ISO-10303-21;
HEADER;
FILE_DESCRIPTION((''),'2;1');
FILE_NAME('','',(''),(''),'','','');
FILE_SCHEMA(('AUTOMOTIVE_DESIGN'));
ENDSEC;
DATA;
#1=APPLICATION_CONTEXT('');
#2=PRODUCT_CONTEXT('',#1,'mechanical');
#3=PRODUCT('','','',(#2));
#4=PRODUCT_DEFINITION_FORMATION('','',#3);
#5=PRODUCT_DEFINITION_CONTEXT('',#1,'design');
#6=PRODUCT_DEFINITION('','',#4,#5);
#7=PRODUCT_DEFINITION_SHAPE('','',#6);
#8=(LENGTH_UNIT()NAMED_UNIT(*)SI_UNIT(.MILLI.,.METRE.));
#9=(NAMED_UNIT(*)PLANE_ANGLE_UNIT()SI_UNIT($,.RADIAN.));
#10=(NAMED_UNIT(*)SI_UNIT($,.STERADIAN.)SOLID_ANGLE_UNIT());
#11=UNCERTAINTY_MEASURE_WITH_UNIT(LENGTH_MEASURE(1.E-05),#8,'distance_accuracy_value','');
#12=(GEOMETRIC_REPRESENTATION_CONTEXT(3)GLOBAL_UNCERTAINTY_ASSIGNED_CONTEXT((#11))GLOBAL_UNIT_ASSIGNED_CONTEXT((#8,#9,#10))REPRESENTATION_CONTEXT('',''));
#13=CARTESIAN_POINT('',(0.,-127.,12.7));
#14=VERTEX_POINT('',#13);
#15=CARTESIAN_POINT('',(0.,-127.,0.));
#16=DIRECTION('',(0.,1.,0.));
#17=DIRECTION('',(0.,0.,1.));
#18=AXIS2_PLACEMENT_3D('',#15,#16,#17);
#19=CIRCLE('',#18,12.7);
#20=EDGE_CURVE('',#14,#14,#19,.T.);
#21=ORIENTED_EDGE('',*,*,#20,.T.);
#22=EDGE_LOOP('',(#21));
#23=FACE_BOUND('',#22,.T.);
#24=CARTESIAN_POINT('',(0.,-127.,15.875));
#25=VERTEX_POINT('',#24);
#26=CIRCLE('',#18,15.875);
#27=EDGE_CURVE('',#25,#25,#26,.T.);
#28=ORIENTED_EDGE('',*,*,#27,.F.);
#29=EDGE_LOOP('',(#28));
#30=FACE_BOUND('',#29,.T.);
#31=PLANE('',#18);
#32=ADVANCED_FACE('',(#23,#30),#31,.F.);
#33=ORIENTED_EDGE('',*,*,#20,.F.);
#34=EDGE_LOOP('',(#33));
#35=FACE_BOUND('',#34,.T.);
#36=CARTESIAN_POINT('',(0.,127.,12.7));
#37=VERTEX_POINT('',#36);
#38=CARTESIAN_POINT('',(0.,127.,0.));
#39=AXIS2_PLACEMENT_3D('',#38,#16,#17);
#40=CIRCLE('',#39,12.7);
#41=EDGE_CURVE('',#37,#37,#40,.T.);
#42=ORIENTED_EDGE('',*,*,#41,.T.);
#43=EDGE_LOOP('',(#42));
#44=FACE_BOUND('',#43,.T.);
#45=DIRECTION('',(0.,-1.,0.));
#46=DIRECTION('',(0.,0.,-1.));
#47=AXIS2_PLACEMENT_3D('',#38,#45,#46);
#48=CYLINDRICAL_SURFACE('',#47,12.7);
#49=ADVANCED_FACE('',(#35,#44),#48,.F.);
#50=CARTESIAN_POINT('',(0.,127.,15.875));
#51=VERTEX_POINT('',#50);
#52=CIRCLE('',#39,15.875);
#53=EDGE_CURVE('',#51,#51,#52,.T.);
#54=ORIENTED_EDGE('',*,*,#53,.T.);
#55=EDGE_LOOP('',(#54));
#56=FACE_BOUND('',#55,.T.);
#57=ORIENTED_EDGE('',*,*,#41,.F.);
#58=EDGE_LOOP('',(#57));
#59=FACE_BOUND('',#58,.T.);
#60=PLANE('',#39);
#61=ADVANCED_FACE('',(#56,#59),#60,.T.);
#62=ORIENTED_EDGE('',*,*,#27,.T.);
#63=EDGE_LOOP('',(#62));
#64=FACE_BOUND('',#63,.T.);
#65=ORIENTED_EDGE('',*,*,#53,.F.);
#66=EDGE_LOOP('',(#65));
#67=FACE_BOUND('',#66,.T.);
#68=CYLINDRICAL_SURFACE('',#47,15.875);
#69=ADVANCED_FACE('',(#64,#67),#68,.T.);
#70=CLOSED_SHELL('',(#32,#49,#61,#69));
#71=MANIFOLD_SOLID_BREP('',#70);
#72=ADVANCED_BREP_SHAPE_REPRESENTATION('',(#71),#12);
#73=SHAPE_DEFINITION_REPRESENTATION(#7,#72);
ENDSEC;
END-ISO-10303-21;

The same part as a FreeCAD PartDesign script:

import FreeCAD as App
import Part
import Sketcher
from FreeCAD import Vector
Q = App.Units.Quantity

doc = App.newDocument("Part")
body = doc.addObject("PartDesign::Body", "Body")

sketch1 = body.newObject("Sketcher::SketchObject", "Sketch")
sketch1.AttachmentSupport = (doc.getObject("XZ_Plane"), [""])
sketch1.MapMode = "FlatFace"
sketch1.addGeometry(Part.Circle(Vector(0, 0, 0), Vector(0, 0, 1), 16), False)
sketch1.addGeometry(Part.Circle(Vector(0, 0, 0), Vector(0, 0, 1), 13), False)
sketch1.addConstraint(Sketcher.Constraint("Coincident", 0, 3, -1, 1))
sketch1.addConstraint(Sketcher.Constraint("Coincident", 1, 3, -1, 1))
sketch1.addConstraint(Sketcher.Constraint("Diameter", 1, Q("1 in")))
sketch1.addConstraint(Sketcher.Constraint("Diameter", 0, Q("1.25 in")))
pad1 = body.newObject("PartDesign::Pad", "Pad")
pad1.Profile = sketch1
pad1.Length = Q("10 in")
pad1.Midplane = True

doc.recompute()
